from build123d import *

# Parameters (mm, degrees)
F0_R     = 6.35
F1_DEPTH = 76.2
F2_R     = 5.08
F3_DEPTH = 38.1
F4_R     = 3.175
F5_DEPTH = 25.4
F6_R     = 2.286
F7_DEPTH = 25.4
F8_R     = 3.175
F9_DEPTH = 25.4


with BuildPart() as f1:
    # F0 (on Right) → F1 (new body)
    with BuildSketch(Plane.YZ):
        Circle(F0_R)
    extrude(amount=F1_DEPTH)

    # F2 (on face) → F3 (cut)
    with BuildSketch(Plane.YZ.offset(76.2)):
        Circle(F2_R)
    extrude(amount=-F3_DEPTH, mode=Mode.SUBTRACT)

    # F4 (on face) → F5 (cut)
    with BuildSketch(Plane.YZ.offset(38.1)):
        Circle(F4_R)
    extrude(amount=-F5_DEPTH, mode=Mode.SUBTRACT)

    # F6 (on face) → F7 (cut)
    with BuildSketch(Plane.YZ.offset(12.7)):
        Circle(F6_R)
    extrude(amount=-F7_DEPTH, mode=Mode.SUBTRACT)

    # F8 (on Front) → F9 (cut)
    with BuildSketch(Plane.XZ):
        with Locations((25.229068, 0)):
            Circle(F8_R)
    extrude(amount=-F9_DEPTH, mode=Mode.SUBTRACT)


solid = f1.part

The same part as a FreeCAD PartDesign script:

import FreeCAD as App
import Part
import Sketcher
Q = App.Units.Quantity

doc = App.newDocument("Part")
params = doc.addObject("Spreadsheet::Sheet", "Params")
for row, (alias, value) in enumerate([
    ("sketch1_diameter", "0.5 in"),
    ("pad1_length", "3 in"),
    ("sketch2_diameter", "0.4 in"),
    ("pocket1_length", "1.5 in"),
    ("sketch3_diameter", "0.25 in"),
    ("pocket2_length", "1 in"),
    ("sketch4_diameter", "0.18 in"),
    ("pocket3_length", "1 in"),
    ("sketch5_diameter", "0.25 in"),
    ("pocket4_length", "1 in"),
], start=1):
    params.set(f"A{row}", alias)
    params.set(f"B{row}", "=" + value)
    params.setAlias(f"B{row}", alias)

body = doc.addObject("PartDesign::Body", "Body")

# Sketch on YZ plane
sketch1 = doc.addObject("Sketcher::SketchObject", "Sketch")
body.addObject(sketch1)
sketch1.AttachmentSupport = (doc.YZ_Plane, [""])
sketch1.MapMode = "FlatFace"
sketch1.addGeometry(Part.Circle(App.Vector(0, 0, 0), App.Vector(0, 0, 1), 6), False)
sketch1.addConstraint([
    Sketcher.Constraint("Coincident", 0, 3, -1, 1),
    Sketcher.Constraint("Diameter", 0, Q("0.5 in")),
])
sketch1.setExpression("Constraints[1]", "Params.sketch1_diameter")
pad1 = doc.addObject("PartDesign::Pad", "Pad")
body.addObject(pad1)
pad1.Profile = sketch1
pad1.setExpression("Length", "Params.pad1_length")

# Sketch on YZ plane
sketch2 = doc.addObject("Sketcher::SketchObject", "Sketch001")
body.addObject(sketch2)
sketch2.AttachmentSupport = (doc.YZ_Plane, [""])
sketch2.MapMode = "FlatFace"
sketch2.AttachmentOffset = App.Placement(App.Vector(0, 0, 3 * 25.4), App.Rotation())
sketch2.addGeometry(Part.Circle(App.Vector(0, 0, 0), App.Vector(0, 0, 1), 5), False)
sketch2.addConstraint([
    Sketcher.Constraint("Coincident", 0, 3, -1, 1),
    Sketcher.Constraint("Diameter", 0, Q("0.4 in")),
])
sketch2.setExpression("Constraints[1]", "Params.sketch2_diameter")
pocket1 = doc.addObject("PartDesign::Pocket", "Pocket")
body.addObject(pocket1)
pocket1.Profile = sketch2
pocket1.setExpression("Length", "Params.pocket1_length")

# Sketch on YZ plane
sketch3 = doc.addObject("Sketcher::SketchObject", "Sketch002")
body.addObject(sketch3)
sketch3.AttachmentSupport = (doc.YZ_Plane, [""])
sketch3.MapMode = "FlatFace"
sketch3.AttachmentOffset = App.Placement(App.Vector(0, 0, 1.5 * 25.4), App.Rotation())
sketch3.addGeometry(Part.Circle(App.Vector(0, 0, 0), App.Vector(0, 0, 1), 3.2), False)
sketch3.addConstraint([
    Sketcher.Constraint("Coincident", 0, 3, -1, 1),
    Sketcher.Constraint("Diameter", 0, Q("0.25 in")),
])
sketch3.setExpression("Constraints[1]", "Params.sketch3_diameter")
pocket2 = doc.addObject("PartDesign::Pocket", "Pocket001")
body.addObject(pocket2)
pocket2.Profile = sketch3
pocket2.setExpression("Length", "Params.pocket2_length")

# Sketch on YZ plane
sketch4 = doc.addObject("Sketcher::SketchObject", "Sketch003")
body.addObject(sketch4)
sketch4.AttachmentSupport = (doc.YZ_Plane, [""])
sketch4.MapMode = "FlatFace"
sketch4.AttachmentOffset = App.Placement(App.Vector(0, 0, 0.5 * 25.4), App.Rotation())
sketch4.addGeometry(Part.Circle(App.Vector(0, 0, 0), App.Vector(0, 0, 1), 2.3), False)
sketch4.addConstraint([
    Sketcher.Constraint("Coincident", 0, 3, -1, 1),
    Sketcher.Constraint("Diameter", 0, Q("0.18 in")),
])
sketch4.setExpression("Constraints[1]", "Params.sketch4_diameter")
pocket3 = doc.addObject("PartDesign::Pocket", "Pocket002")
body.addObject(pocket3)
pocket3.Profile = sketch4
pocket3.setExpression("Length", "Params.pocket3_length")

# Sketch on XZ plane
sketch5 = doc.addObject("Sketcher::SketchObject", "Sketch004")
body.addObject(sketch5)
sketch5.AttachmentSupport = (doc.XZ_Plane, [""])
sketch5.MapMode = "FlatFace"
sketch5.addGeometry(Part.Circle(App.Vector(25.2, 0, 0), App.Vector(0, 0, 1), 3.2), False)
sketch5.addConstraint([
    Sketcher.Constraint("PointOnObject", 0, 3, -1),
    Sketcher.Constraint("Diameter", 0, Q("0.25 in")),
    Sketcher.Constraint("DistanceX", -1, 1, 0, 3, 25.229068),
])
sketch5.setExpression("Constraints[1]", "Params.sketch5_diameter")
pocket4 = doc.addObject("PartDesign::Pocket", "Pocket003")
body.addObject(pocket4)
pocket4.Profile = sketch5
pocket4.setExpression("Length", "Params.pocket4_length")

doc.recompute()
